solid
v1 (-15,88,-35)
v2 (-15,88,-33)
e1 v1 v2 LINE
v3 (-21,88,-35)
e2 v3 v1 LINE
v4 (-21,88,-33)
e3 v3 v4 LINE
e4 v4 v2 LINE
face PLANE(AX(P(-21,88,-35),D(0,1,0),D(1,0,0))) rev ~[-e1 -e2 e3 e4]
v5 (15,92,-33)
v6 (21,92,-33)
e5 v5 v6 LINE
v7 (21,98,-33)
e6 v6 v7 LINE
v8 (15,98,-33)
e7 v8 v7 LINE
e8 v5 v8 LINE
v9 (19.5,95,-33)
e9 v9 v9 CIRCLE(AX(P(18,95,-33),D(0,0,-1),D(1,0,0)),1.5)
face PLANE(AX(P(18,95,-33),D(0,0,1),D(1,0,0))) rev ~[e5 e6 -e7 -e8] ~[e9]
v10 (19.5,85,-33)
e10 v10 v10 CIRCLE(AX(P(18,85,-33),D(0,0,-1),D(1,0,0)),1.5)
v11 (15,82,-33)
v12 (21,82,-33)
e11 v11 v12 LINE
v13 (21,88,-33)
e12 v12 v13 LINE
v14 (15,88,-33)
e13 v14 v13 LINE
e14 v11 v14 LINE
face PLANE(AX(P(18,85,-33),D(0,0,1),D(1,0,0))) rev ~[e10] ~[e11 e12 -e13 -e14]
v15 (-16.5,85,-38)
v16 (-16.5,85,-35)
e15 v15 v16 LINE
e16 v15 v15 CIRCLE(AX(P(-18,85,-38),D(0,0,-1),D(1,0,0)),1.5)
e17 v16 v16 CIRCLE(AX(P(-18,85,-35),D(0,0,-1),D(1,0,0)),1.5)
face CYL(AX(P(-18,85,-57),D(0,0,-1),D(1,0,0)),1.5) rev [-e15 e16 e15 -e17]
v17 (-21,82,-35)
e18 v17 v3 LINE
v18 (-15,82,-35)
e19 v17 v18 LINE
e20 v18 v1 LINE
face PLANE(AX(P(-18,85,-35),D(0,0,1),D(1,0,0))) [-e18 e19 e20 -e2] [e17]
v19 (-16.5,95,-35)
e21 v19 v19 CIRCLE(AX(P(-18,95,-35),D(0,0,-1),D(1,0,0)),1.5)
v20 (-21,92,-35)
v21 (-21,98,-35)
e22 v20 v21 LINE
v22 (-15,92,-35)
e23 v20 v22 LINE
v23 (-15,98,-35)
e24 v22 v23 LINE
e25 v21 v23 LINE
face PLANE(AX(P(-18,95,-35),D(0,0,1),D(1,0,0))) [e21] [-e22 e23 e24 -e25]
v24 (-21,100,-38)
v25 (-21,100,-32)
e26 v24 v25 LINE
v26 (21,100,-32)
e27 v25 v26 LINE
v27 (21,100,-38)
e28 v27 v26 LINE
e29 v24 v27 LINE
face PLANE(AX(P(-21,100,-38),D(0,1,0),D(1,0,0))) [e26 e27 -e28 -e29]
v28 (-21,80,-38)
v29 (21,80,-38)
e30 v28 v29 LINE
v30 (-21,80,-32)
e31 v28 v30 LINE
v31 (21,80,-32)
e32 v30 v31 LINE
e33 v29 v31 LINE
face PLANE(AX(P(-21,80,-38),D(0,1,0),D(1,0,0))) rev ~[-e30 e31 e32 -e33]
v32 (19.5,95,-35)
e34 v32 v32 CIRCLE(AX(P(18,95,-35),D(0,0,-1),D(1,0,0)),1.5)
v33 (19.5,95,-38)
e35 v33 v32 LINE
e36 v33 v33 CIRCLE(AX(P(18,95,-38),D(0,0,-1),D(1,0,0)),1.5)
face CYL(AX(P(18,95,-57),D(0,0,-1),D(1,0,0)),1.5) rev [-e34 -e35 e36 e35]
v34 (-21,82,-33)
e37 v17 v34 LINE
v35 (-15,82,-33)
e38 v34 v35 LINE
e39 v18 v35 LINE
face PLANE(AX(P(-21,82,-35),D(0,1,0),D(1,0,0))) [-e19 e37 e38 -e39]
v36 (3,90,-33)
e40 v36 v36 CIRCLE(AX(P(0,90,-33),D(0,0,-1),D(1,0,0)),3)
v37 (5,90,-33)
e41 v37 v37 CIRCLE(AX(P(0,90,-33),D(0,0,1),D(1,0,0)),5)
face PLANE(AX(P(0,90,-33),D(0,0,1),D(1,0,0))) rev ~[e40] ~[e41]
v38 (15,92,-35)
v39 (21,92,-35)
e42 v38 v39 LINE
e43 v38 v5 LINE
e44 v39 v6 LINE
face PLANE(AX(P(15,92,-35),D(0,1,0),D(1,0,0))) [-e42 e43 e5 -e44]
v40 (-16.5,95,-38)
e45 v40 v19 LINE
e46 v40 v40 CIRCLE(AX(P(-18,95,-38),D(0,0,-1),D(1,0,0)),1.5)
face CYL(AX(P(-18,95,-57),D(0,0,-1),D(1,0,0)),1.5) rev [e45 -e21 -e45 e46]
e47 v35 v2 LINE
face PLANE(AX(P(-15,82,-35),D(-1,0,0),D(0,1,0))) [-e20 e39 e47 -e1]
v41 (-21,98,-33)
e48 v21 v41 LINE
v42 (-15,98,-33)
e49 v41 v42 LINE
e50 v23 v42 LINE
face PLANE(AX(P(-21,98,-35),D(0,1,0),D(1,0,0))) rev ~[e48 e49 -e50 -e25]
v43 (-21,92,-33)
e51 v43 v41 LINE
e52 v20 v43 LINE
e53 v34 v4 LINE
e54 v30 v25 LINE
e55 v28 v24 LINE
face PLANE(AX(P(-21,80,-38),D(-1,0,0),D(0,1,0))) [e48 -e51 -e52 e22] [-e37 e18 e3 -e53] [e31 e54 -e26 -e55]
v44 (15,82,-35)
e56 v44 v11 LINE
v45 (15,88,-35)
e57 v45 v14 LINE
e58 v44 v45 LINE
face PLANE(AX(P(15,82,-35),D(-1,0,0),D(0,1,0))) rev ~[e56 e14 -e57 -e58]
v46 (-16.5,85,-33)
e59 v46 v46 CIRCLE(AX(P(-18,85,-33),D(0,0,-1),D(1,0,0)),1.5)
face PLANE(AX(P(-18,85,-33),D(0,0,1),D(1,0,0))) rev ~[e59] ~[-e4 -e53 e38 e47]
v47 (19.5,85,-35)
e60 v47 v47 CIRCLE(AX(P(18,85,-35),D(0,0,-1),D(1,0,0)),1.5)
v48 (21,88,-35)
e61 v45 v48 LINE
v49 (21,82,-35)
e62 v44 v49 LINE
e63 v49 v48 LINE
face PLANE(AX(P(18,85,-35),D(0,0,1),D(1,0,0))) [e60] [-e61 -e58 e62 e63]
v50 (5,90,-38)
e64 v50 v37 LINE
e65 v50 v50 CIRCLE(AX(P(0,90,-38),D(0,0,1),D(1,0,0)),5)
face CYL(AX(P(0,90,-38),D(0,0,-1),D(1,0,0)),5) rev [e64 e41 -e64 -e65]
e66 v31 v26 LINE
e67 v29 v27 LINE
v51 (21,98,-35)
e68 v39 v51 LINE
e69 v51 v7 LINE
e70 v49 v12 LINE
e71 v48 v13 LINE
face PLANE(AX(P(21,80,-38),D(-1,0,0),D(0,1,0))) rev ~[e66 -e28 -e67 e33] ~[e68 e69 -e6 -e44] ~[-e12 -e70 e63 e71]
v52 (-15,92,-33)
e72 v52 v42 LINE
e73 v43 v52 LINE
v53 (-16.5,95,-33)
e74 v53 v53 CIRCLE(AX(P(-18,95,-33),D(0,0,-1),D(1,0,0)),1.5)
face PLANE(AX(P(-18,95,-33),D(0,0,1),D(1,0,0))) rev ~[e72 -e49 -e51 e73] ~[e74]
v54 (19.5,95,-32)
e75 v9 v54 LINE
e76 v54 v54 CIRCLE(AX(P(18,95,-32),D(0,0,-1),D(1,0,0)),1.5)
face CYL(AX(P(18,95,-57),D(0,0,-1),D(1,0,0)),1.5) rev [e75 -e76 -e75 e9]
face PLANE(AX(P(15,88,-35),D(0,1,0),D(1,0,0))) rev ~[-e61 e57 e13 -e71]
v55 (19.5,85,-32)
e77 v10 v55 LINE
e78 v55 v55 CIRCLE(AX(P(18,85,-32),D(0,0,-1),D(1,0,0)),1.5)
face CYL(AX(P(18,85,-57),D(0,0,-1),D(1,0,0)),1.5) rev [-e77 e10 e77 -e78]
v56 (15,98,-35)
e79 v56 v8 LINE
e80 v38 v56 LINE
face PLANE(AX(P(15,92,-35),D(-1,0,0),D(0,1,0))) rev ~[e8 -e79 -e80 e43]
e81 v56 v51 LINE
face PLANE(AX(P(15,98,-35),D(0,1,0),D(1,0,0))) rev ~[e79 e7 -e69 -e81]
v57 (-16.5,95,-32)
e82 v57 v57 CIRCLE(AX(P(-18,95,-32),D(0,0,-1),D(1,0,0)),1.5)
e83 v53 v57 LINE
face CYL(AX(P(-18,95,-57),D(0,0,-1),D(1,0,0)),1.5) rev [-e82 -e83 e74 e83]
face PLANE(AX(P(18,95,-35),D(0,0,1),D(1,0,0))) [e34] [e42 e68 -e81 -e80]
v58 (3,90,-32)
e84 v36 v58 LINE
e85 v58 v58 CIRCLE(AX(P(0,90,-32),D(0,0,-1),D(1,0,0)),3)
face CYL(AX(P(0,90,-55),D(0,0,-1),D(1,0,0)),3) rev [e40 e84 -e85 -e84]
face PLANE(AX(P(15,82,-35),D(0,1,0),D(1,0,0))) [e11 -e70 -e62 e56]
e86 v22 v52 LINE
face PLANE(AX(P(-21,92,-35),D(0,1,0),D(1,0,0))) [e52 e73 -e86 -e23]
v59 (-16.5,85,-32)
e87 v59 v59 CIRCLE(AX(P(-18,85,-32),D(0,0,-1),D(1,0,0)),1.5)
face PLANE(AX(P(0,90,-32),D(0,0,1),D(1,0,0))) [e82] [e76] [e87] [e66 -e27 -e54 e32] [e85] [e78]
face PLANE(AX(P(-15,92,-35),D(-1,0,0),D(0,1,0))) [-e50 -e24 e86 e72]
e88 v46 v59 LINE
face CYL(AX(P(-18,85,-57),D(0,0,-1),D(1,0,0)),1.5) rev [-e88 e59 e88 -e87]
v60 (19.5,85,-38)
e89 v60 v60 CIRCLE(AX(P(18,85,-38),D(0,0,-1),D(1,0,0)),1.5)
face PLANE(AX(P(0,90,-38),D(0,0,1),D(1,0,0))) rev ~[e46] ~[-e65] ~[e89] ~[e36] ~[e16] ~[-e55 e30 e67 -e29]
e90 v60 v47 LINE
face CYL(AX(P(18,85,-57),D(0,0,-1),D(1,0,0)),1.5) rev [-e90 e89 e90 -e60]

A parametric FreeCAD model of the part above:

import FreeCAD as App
import Part
import Sketcher
Q = App.Units.Quantity

doc = App.newDocument("Part")
body = doc.addObject("PartDesign::Body", "Body")

# Sketch on XY plane
sketch1 = body.newObject("Sketcher::SketchObject", "Sketch")
sketch1.AttachmentSupport = (doc.getObject("XY_Plane"), [""])
sketch1.MapMode = "FlatFace"
sketch1.AttachmentOffset = App.Placement(App.Vector(0, 0, -57), App.Rotation())
sketch1.addGeometry(Part.Circle(App.Vector(18, 85, 0), App.Vector(0, 0, 1), 1.5), False)
sketch1.addConstraint(Sketcher.Constraint("Diameter", 0, Q("3 mm")))
sketch1.addConstraint(Sketcher.Constraint("DistanceX", -1, 1, 0, 3, Q("18 mm")))
sketch1.addConstraint(Sketcher.Constraint("DistanceY", -1, 1, 0, 3, Q("85 mm")))
pad1 = body.newObject("PartDesign::Pad", "Pad")
pad1.Profile = sketch1
pad1.Length = 60
body2 = doc.addObject("PartDesign::Body", "Body001")

# Sketch on XY plane
sketch2 = body2.newObject("Sketcher::SketchObject", "Sketch001")
sketch2.AttachmentSupport = (doc.getObject("XY_Plane001"), [""])
sketch2.MapMode = "FlatFace"
sketch2.AttachmentOffset = App.Placement(App.Vector(0, 0, -57), App.Rotation())
sketch2.addGeometry(Part.Circle(App.Vector(-18, 85, 0), App.Vector(0, 0, 1), 1.5), False)
sketch2.addConstraint(Sketcher.Constraint("Diameter", 0, Q("3 mm")))
sketch2.addConstraint(Sketcher.Constraint("DistanceX", 0, 3, -1, 1, Q("18 mm")))
sketch2.addConstraint(Sketcher.Constraint("DistanceY", -1, 1, 0, 3, Q("85 mm")))
pad2 = body2.newObject("PartDesign::Pad", "Pad001")
pad2.Profile = sketch2
pad2.Length = 60
body3 = doc.addObject("PartDesign::Body", "Body002")

# Sketch on XY plane
sketch3 = body3.newObject("Sketcher::SketchObject", "Sketch002")
sketch3.AttachmentSupport = (doc.getObject("XY_Plane002"), [""])
sketch3.MapMode = "FlatFace"
sketch3.AttachmentOffset = App.Placement(App.Vector(0, 0, -57), App.Rotation())
sketch3.addGeometry(Part.Circle(App.Vector(-18, 95, 0), App.Vector(0, 0, 1), 1.5), False)
sketch3.addConstraint(Sketcher.Constraint("Diameter", 0, Q("3 mm")))
sketch3.addConstraint(Sketcher.Constraint("DistanceX", 0, 3, -1, 1, Q("18 mm")))
sketch3.addConstraint(Sketcher.Constraint("DistanceY", -1, 1, 0, 3, Q("95 mm")))
pad3 = body3.newObject("PartDesign::Pad", "Pad002")
pad3.Profile = sketch3
pad3.Length = 60
body4 = doc.addObject("PartDesign::Body", "Body003")
body4.AllowCompound = True

# Sketch on XY plane
sketch4 = body4.newObject("Sketcher::SketchObject", "Sketch003")
sketch4.AttachmentSupport = (doc.getObject("XY_Plane003"), [""])
sketch4.MapMode = "FlatFace"
sketch4.AttachmentOffset = App.Placement(App.Vector(0, 0, -57), App.Rotation())
sketch4.addGeometry(Part.Circle(App.Vector(18, 95, 0), App.Vector(0, 0, 1), 1.5), False)
sketch4.addConstraint(Sketcher.Constraint("Diameter", 0, Q("3 mm")))
sketch4.addConstraint(Sketcher.Constraint("DistanceX", -1, 1, 0, 3, Q("18 mm")))
sketch4.addConstraint(Sketcher.Constraint("DistanceY", -1, 1, 0, 3, Q("95 mm")))
pad4 = body4.newObject("PartDesign::Pad", "Pad003")
pad4.Profile = sketch4
pad4.Length = 60
doc.recompute()

boolean = body4.newObject("PartDesign::Boolean", "Boolean")
boolean.Type = "Fuse"
boolean.addObjects([body])
doc.recompute()

boolean2 = body4.newObject("PartDesign::Boolean", "Boolean001")
boolean2.Type = "Fuse"
boolean2.addObjects([body2])
doc.recompute()

boolean3 = body4.newObject("PartDesign::Boolean", "Boolean002")
boolean3.Type = "Fuse"
boolean3.addObjects([body3])
body5 = doc.addObject("PartDesign::Body", "Body004")

# Sketch on XY plane
sketch5 = body5.newObject("Sketcher::SketchObject", "Sketch004")
sketch5.AttachmentSupport = (doc.getObject("XY_Plane004"), [""])
sketch5.MapMode = "FlatFace"
sketch5.AttachmentOffset = App.Placement(App.Vector(0, 0, -56), App.Rotation())
sketch5.addGeometry(Part.LineSegment(App.Vector(-21, 98, 0), App.Vector(-21, 92, 0)), False)
sketch5.addGeometry(Part.LineSegment(App.Vector(-21, 92, 0), App.Vector(-15, 92, 0)), False)
sketch5.addGeometry(Part.LineSegment(App.Vector(-15, 92, 0), App.Vector(-15, 98, 0)), False)
sketch5.addGeometry(Part.LineSegment(App.Vector(-15, 98, 0), App.Vector(-21, 98, 0)), False)
sketch5.addConstraint(Sketcher.Constraint("Coincident", 0, 2, 1, 1))
sketch5.addConstraint(Sketcher.Constraint("Coincident", 1, 2, 2, 1))
sketch5.addConstraint(Sketcher.Constraint("Coincident", 2, 2, 3, 1))
sketch5.addConstraint(Sketcher.Constraint("Coincident", 3, 2, 0, 1))
sketch5.addConstraint(Sketcher.Constraint("Vertical", 0))
sketch5.addConstraint(Sketcher.Constraint("Horizontal", 1))
sketch5.addConstraint(Sketcher.Constraint("Vertical", 2))
sketch5.addConstraint(Sketcher.Constraint("Horizontal", 3))
sketch5.addConstraint(Sketcher.Constraint("Equal", 3, 0))
sketch5.addConstraint(Sketcher.Constraint("DistanceX", 1, 1, 1, 2, Q("6 mm")))
sketch5.addConstraint(Sketcher.Constraint("DistanceX", 0, 2, -1, 1, Q("21 mm")))
sketch5.addConstraint(Sketcher.Constraint("DistanceY", -1, 1, 0, 2, Q("92 mm")))
pad5 = body5.newObject("PartDesign::Pad", "Pad004")
pad5.Profile = sketch5
pad5.Length = 2
body6 = doc.addObject("PartDesign::Body", "Body005")

# Sketch on XY plane
sketch6 = body6.newObject("Sketcher::SketchObject", "Sketch005")
sketch6.AttachmentSupport = (doc.getObject("XY_Plane005"), [""])
sketch6.MapMode = "FlatFace"
sketch6.AttachmentOffset = App.Placement(App.Vector(0, 0, -56), App.Rotation())
sketch6.addGeometry(Part.LineSegment(App.Vector(15, 88, 0), App.Vector(15, 82, 0)), False)
sketch6.addGeometry(Part.LineSegment(App.Vector(15, 82, 0), App.Vector(21, 82, 0)), False)
sketch6.addGeometry(Part.LineSegment(App.Vector(21, 82, 0), App.Vector(21, 88, 0)), False)
sketch6.addGeometry(Part.LineSegment(App.Vector(21, 88, 0), App.Vector(15, 88, 0)), False)
sketch6.addConstraint(Sketcher.Constraint("Coincident", 0, 2, 1, 1))
sketch6.addConstraint(Sketcher.Constraint("Coincident", 1, 2, 2, 1))
sketch6.addConstraint(Sketcher.Constraint("Coincident", 2, 2, 3, 1))
sketch6.addConstraint(Sketcher.Constraint("Coincident", 3, 2, 0, 1))
sketch6.addConstraint(Sketcher.Constraint("Vertical", 0))
sketch6.addConstraint(Sketcher.Constraint("Horizontal", 1))
sketch6.addConstraint(Sketcher.Constraint("Vertical", 2))
sketch6.addConstraint(Sketcher.Constraint("Horizontal", 3))
sketch6.addConstraint(Sketcher.Constraint("Equal", 3, 0))
sketch6.addConstraint(Sketcher.Constraint("DistanceX", 1, 1, 1, 2, Q("6 mm")))
sketch6.addConstraint(Sketcher.Constraint("DistanceX", -1, 1, 0, 2, Q("15 mm")))
sketch6.addConstraint(Sketcher.Constraint("DistanceY", -1, 1, 0, 2, Q("82 mm")))
pad6 = body6.newObject("PartDesign::Pad", "Pad005")
pad6.Profile = sketch6
pad6.Length = 2
body7 = doc.addObject("PartDesign::Body", "Body006")

# Sketch on XY plane
sketch7 = body7.newObject("Sketcher::SketchObject", "Sketch006")
sketch7.AttachmentSupport = (doc.getObject("XY_Plane006"), [""])
sketch7.MapMode = "FlatFace"
sketch7.AttachmentOffset = App.Placement(App.Vector(0, 0, -56), App.Rotation())
sketch7.addGeometry(Part.LineSegment(App.Vector(15, 98, 0), App.Vector(15, 92, 0)), False)
sketch7.addGeometry(Part.LineSegment(App.Vector(15, 92, 0), App.Vector(21, 92, 0)), False)
sketch7.addGeometry(Part.LineSegment(App.Vector(21, 92, 0), App.Vector(21, 98, 0)), False)
sketch7.addGeometry(Part.LineSegment(App.Vector(21, 98, 0), App.Vector(15, 98, 0)), False)
sketch7.addConstraint(Sketcher.Constraint("Coincident", 0, 2, 1, 1))
sketch7.addConstraint(Sketcher.Constraint("Coincident", 1, 2, 2, 1))
sketch7.addConstraint(Sketcher.Constraint("Coincident", 2, 2, 3, 1))
sketch7.addConstraint(Sketcher.Constraint("Coincident", 3, 2, 0, 1))
sketch7.addConstraint(Sketcher.Constraint("Vertical", 0))
sketch7.addConstraint(Sketcher.Constraint("Horizontal", 1))
sketch7.addConstraint(Sketcher.Constraint("Vertical", 2))
sketch7.addConstraint(Sketcher.Constraint("Horizontal", 3))
sketch7.addConstraint(Sketcher.Constraint("Equal", 3, 0))
sketch7.addConstraint(Sketcher.Constraint("DistanceX", 1, 1, 1, 2, Q("6 mm")))
sketch7.addConstraint(Sketcher.Constraint("DistanceX", -1, 1, 0, 2, Q("15 mm")))
sketch7.addConstraint(Sketcher.Constraint("DistanceY", -1, 1, 0, 2, Q("92 mm")))
pad7 = body7.newObject("PartDesign::Pad", "Pad006")
pad7.Profile = sketch7
pad7.Length = 2
body8 = doc.addObject("PartDesign::Body", "Body007")
body8.AllowCompound = True

# Sketch on XY plane
sketch8 = body8.newObject("Sketcher::SketchObject", "Sketch007")
sketch8.AttachmentSupport = (doc.getObject("XY_Plane007"), [""])
sketch8.MapMode = "FlatFace"
sketch8.AttachmentOffset = App.Placement(App.Vector(0, 0, -56), App.Rotation())
sketch8.addGeometry(Part.LineSegment(App.Vector(-21, 88, 0), App.Vector(-21, 82, 0)), False)
sketch8.addGeometry(Part.LineSegment(App.Vector(-21, 82, 0), App.Vector(-15, 82, 0)), False)
sketch8.addGeometry(Part.LineSegment(App.Vector(-15, 82, 0), App.Vector(-15, 88, 0)), False)
sketch8.addGeometry(Part.LineSegment(App.Vector(-15, 88, 0), App.Vector(-21, 88, 0)), False)
sketch8.addConstraint(Sketcher.Constraint("Coincident", 0, 2, 1, 1))
sketch8.addConstraint(Sketcher.Constraint("Coincident", 1, 2, 2, 1))
sketch8.addConstraint(Sketcher.Constraint("Coincident", 2, 2, 3, 1))
sketch8.addConstraint(Sketcher.Constraint("Coincident", 3, 2, 0, 1))
sketch8.addConstraint(Sketcher.Constraint("Vertical", 0))
sketch8.addConstraint(Sketcher.Constraint("Horizontal", 1))
sketch8.addConstraint(Sketcher.Constraint("Vertical", 2))
sketch8.addConstraint(Sketcher.Constraint("Horizontal", 3))
sketch8.addConstraint(Sketcher.Constraint("Equal", 3, 0))
sketch8.addConstraint(Sketcher.Constraint("DistanceX", 1, 1, 1, 2, Q("6 mm")))
sketch8.addConstraint(Sketcher.Constraint("DistanceX", 0, 2, -1, 1, Q("21 mm")))
sketch8.addConstraint(Sketcher.Constraint("DistanceY", -1, 1, 0, 2, Q("82 mm")))
pad8 = body8.newObject("PartDesign::Pad", "Pad007")
pad8.Profile = sketch8
pad8.Length = 2
doc.recompute()

boolean4 = body8.newObject("PartDesign::Boolean", "Boolean003")
boolean4.Type = "Fuse"
boolean4.addObjects([body5])
doc.recompute()

boolean5 = body8.newObject("PartDesign::Boolean", "Boolean004")
boolean5.Type = "Fuse"
boolean5.addObjects([body6])
doc.recompute()

boolean6 = body8.newObject("PartDesign::Boolean", "Boolean005")
boolean6.Type = "Fuse"
boolean6.addObjects([body7])
body9 = doc.addObject("PartDesign::Body", "Body008")
body9.AllowCompound = True
doc.recompute()

body8.Placement = App.Placement(App.Vector(0, 0, 21), App.Rotation(App.Vector(0, 0, 1), 0))
boolean7 = body9.newObject("PartDesign::Boolean", "Boolean006")
boolean7.Type = "Fuse"
boolean7.addObjects([body8])
body10 = doc.addObject("PartDesign::Body", "Body009")

# Sketch on XY plane
sketch9 = body10.newObject("Sketcher::SketchObject", "Sketch008")
sketch9.AttachmentSupport = (doc.getObject("XY_Plane009"), [""])
sketch9.MapMode = "FlatFace"
sketch9.AttachmentOffset = App.Placement(App.Vector(0, 0, -38), App.Rotation())
sketch9.addGeometry(Part.Circle(App.Vector(0, 90, 0), App.Vector(0, 0, 1), 5), False)
sketch9.addConstraint(Sketcher.Constraint("PointOnObject", 0, 3, -2))
sketch9.addConstraint(Sketcher.Constraint("Diameter", 0, Q("10 mm")))
sketch9.addConstraint(Sketcher.Constraint("DistanceY", -1, 1, 0, 3, Q("90 mm")))
pad9 = body10.newObject("PartDesign::Pad", "Pad008")
pad9.Profile = sketch9
pad9.Length = 5
body11 = doc.addObject("PartDesign::Body", "Body010")

# Sketch on XY plane
sketch10 = body11.newObject("Sketcher::SketchObject", "Sketch009")
sketch10.AttachmentSupport = (doc.getObject("XY_Plane010"), [""])
sketch10.MapMode = "FlatFace"
sketch10.AttachmentOffset = App.Placement(App.Vector(0, 0, -55), App.Rotation())
sketch10.addGeometry(Part.Circle(App.Vector(0, 90, 0), App.Vector(0, 0, 1), 3), False)
sketch10.addConstraint(Sketcher.Constraint("PointOnObject", 0, 3, -2))
sketch10.addConstraint(Sketcher.Constraint("Diameter", 0, Q("6 mm")))
sketch10.addConstraint(Sketcher.Constraint("DistanceY", -1, 1, 0, 3, Q("90 mm")))
pad10 = body11.newObject("PartDesign::Pad", "Pad009")
pad10.Profile = sketch10
pad10.Length = 48
body12 = doc.addObject("PartDesign::Body", "Body011")

# Sketch on XY plane
sketch11 = body12.newObject("Sketcher::SketchObject", "Sketch010")
sketch11.AttachmentSupport = (doc.getObject("XY_Plane011"), [""])
sketch11.MapMode = "FlatFace"
sketch11.AttachmentOffset = App.Placement(App.Vector(0, 0, -38), App.Rotation())
sketch11.addGeometry(Part.LineSegment(App.Vector(-21, 100, 0), App.Vector(-21, 80, 0)), False)
sketch11.addGeometry(Part.LineSegment(App.Vector(-21, 80, 0), App.Vector(21, 80, 0)), False)
sketch11.addGeometry(Part.LineSegment(App.Vector(21, 80, 0), App.Vector(21, 100, 0)), False)
sketch11.addGeometry(Part.LineSegment(App.Vector(21, 100, 0), App.Vector(-21, 100, 0)), False)
sketch11.addConstraint(Sketcher.Constraint("Coincident", 0, 2, 1, 1))
sketch11.addConstraint(Sketcher.Constraint("Coincident", 1, 2, 2, 1))
sketch11.addConstraint(Sketcher.Constraint("Coincident", 2, 2, 3, 1))
sketch11.addConstraint(Sketcher.Constraint("Coincident", 3, 2, 0, 1))
sketch11.addConstraint(Sketcher.Constraint("Vertical", 0))
sketch11.addConstraint(Sketcher.Constraint("Horizontal", 1))
sketch11.addConstraint(Sketcher.Constraint("Vertical", 2))
sketch11.addConstraint(Sketcher.Constraint("Horizontal", 3))
sketch11.addConstraint(Sketcher.Constraint("DistanceX", 1, 1, 1, 2, Q("42 mm")))
sketch11.addConstraint(Sketcher.Constraint("DistanceY", 0, 2, 0, 1, Q("20 mm")))
sketch11.addConstraint(Sketcher.Constraint("DistanceX", 0, 2, -1, 1, Q("21 mm")))
sketch11.addConstraint(Sketcher.Constraint("DistanceY", -1, 1, 0, 2, Q("80 mm")))
pad11 = body12.newObject("PartDesign::Pad", "Pad010")
pad11.Profile = sketch11
pad11.Length = 6
doc.recompute()

boolean8 = body12.newObject("PartDesign::Boolean", "Boolean007")
boolean8.Type = "Cut"
boolean8.addObjects([body11])
doc.recompute()

boolean9 = body12.newObject("PartDesign::Boolean", "Boolean008")
boolean9.Type = "Cut"
boolean9.addObjects([body10])
doc.recompute()

boolean10 = body12.newObject("PartDesign::Boolean", "Boolean009")
boolean10.Type = "Cut"
boolean10.addObjects([body9])
doc.recompute()

boolean11 = body12.newObject("PartDesign::Boolean", "Boolean010")
boolean11.Type = "Cut"
boolean11.addObjects([body4])

doc.recompute()
